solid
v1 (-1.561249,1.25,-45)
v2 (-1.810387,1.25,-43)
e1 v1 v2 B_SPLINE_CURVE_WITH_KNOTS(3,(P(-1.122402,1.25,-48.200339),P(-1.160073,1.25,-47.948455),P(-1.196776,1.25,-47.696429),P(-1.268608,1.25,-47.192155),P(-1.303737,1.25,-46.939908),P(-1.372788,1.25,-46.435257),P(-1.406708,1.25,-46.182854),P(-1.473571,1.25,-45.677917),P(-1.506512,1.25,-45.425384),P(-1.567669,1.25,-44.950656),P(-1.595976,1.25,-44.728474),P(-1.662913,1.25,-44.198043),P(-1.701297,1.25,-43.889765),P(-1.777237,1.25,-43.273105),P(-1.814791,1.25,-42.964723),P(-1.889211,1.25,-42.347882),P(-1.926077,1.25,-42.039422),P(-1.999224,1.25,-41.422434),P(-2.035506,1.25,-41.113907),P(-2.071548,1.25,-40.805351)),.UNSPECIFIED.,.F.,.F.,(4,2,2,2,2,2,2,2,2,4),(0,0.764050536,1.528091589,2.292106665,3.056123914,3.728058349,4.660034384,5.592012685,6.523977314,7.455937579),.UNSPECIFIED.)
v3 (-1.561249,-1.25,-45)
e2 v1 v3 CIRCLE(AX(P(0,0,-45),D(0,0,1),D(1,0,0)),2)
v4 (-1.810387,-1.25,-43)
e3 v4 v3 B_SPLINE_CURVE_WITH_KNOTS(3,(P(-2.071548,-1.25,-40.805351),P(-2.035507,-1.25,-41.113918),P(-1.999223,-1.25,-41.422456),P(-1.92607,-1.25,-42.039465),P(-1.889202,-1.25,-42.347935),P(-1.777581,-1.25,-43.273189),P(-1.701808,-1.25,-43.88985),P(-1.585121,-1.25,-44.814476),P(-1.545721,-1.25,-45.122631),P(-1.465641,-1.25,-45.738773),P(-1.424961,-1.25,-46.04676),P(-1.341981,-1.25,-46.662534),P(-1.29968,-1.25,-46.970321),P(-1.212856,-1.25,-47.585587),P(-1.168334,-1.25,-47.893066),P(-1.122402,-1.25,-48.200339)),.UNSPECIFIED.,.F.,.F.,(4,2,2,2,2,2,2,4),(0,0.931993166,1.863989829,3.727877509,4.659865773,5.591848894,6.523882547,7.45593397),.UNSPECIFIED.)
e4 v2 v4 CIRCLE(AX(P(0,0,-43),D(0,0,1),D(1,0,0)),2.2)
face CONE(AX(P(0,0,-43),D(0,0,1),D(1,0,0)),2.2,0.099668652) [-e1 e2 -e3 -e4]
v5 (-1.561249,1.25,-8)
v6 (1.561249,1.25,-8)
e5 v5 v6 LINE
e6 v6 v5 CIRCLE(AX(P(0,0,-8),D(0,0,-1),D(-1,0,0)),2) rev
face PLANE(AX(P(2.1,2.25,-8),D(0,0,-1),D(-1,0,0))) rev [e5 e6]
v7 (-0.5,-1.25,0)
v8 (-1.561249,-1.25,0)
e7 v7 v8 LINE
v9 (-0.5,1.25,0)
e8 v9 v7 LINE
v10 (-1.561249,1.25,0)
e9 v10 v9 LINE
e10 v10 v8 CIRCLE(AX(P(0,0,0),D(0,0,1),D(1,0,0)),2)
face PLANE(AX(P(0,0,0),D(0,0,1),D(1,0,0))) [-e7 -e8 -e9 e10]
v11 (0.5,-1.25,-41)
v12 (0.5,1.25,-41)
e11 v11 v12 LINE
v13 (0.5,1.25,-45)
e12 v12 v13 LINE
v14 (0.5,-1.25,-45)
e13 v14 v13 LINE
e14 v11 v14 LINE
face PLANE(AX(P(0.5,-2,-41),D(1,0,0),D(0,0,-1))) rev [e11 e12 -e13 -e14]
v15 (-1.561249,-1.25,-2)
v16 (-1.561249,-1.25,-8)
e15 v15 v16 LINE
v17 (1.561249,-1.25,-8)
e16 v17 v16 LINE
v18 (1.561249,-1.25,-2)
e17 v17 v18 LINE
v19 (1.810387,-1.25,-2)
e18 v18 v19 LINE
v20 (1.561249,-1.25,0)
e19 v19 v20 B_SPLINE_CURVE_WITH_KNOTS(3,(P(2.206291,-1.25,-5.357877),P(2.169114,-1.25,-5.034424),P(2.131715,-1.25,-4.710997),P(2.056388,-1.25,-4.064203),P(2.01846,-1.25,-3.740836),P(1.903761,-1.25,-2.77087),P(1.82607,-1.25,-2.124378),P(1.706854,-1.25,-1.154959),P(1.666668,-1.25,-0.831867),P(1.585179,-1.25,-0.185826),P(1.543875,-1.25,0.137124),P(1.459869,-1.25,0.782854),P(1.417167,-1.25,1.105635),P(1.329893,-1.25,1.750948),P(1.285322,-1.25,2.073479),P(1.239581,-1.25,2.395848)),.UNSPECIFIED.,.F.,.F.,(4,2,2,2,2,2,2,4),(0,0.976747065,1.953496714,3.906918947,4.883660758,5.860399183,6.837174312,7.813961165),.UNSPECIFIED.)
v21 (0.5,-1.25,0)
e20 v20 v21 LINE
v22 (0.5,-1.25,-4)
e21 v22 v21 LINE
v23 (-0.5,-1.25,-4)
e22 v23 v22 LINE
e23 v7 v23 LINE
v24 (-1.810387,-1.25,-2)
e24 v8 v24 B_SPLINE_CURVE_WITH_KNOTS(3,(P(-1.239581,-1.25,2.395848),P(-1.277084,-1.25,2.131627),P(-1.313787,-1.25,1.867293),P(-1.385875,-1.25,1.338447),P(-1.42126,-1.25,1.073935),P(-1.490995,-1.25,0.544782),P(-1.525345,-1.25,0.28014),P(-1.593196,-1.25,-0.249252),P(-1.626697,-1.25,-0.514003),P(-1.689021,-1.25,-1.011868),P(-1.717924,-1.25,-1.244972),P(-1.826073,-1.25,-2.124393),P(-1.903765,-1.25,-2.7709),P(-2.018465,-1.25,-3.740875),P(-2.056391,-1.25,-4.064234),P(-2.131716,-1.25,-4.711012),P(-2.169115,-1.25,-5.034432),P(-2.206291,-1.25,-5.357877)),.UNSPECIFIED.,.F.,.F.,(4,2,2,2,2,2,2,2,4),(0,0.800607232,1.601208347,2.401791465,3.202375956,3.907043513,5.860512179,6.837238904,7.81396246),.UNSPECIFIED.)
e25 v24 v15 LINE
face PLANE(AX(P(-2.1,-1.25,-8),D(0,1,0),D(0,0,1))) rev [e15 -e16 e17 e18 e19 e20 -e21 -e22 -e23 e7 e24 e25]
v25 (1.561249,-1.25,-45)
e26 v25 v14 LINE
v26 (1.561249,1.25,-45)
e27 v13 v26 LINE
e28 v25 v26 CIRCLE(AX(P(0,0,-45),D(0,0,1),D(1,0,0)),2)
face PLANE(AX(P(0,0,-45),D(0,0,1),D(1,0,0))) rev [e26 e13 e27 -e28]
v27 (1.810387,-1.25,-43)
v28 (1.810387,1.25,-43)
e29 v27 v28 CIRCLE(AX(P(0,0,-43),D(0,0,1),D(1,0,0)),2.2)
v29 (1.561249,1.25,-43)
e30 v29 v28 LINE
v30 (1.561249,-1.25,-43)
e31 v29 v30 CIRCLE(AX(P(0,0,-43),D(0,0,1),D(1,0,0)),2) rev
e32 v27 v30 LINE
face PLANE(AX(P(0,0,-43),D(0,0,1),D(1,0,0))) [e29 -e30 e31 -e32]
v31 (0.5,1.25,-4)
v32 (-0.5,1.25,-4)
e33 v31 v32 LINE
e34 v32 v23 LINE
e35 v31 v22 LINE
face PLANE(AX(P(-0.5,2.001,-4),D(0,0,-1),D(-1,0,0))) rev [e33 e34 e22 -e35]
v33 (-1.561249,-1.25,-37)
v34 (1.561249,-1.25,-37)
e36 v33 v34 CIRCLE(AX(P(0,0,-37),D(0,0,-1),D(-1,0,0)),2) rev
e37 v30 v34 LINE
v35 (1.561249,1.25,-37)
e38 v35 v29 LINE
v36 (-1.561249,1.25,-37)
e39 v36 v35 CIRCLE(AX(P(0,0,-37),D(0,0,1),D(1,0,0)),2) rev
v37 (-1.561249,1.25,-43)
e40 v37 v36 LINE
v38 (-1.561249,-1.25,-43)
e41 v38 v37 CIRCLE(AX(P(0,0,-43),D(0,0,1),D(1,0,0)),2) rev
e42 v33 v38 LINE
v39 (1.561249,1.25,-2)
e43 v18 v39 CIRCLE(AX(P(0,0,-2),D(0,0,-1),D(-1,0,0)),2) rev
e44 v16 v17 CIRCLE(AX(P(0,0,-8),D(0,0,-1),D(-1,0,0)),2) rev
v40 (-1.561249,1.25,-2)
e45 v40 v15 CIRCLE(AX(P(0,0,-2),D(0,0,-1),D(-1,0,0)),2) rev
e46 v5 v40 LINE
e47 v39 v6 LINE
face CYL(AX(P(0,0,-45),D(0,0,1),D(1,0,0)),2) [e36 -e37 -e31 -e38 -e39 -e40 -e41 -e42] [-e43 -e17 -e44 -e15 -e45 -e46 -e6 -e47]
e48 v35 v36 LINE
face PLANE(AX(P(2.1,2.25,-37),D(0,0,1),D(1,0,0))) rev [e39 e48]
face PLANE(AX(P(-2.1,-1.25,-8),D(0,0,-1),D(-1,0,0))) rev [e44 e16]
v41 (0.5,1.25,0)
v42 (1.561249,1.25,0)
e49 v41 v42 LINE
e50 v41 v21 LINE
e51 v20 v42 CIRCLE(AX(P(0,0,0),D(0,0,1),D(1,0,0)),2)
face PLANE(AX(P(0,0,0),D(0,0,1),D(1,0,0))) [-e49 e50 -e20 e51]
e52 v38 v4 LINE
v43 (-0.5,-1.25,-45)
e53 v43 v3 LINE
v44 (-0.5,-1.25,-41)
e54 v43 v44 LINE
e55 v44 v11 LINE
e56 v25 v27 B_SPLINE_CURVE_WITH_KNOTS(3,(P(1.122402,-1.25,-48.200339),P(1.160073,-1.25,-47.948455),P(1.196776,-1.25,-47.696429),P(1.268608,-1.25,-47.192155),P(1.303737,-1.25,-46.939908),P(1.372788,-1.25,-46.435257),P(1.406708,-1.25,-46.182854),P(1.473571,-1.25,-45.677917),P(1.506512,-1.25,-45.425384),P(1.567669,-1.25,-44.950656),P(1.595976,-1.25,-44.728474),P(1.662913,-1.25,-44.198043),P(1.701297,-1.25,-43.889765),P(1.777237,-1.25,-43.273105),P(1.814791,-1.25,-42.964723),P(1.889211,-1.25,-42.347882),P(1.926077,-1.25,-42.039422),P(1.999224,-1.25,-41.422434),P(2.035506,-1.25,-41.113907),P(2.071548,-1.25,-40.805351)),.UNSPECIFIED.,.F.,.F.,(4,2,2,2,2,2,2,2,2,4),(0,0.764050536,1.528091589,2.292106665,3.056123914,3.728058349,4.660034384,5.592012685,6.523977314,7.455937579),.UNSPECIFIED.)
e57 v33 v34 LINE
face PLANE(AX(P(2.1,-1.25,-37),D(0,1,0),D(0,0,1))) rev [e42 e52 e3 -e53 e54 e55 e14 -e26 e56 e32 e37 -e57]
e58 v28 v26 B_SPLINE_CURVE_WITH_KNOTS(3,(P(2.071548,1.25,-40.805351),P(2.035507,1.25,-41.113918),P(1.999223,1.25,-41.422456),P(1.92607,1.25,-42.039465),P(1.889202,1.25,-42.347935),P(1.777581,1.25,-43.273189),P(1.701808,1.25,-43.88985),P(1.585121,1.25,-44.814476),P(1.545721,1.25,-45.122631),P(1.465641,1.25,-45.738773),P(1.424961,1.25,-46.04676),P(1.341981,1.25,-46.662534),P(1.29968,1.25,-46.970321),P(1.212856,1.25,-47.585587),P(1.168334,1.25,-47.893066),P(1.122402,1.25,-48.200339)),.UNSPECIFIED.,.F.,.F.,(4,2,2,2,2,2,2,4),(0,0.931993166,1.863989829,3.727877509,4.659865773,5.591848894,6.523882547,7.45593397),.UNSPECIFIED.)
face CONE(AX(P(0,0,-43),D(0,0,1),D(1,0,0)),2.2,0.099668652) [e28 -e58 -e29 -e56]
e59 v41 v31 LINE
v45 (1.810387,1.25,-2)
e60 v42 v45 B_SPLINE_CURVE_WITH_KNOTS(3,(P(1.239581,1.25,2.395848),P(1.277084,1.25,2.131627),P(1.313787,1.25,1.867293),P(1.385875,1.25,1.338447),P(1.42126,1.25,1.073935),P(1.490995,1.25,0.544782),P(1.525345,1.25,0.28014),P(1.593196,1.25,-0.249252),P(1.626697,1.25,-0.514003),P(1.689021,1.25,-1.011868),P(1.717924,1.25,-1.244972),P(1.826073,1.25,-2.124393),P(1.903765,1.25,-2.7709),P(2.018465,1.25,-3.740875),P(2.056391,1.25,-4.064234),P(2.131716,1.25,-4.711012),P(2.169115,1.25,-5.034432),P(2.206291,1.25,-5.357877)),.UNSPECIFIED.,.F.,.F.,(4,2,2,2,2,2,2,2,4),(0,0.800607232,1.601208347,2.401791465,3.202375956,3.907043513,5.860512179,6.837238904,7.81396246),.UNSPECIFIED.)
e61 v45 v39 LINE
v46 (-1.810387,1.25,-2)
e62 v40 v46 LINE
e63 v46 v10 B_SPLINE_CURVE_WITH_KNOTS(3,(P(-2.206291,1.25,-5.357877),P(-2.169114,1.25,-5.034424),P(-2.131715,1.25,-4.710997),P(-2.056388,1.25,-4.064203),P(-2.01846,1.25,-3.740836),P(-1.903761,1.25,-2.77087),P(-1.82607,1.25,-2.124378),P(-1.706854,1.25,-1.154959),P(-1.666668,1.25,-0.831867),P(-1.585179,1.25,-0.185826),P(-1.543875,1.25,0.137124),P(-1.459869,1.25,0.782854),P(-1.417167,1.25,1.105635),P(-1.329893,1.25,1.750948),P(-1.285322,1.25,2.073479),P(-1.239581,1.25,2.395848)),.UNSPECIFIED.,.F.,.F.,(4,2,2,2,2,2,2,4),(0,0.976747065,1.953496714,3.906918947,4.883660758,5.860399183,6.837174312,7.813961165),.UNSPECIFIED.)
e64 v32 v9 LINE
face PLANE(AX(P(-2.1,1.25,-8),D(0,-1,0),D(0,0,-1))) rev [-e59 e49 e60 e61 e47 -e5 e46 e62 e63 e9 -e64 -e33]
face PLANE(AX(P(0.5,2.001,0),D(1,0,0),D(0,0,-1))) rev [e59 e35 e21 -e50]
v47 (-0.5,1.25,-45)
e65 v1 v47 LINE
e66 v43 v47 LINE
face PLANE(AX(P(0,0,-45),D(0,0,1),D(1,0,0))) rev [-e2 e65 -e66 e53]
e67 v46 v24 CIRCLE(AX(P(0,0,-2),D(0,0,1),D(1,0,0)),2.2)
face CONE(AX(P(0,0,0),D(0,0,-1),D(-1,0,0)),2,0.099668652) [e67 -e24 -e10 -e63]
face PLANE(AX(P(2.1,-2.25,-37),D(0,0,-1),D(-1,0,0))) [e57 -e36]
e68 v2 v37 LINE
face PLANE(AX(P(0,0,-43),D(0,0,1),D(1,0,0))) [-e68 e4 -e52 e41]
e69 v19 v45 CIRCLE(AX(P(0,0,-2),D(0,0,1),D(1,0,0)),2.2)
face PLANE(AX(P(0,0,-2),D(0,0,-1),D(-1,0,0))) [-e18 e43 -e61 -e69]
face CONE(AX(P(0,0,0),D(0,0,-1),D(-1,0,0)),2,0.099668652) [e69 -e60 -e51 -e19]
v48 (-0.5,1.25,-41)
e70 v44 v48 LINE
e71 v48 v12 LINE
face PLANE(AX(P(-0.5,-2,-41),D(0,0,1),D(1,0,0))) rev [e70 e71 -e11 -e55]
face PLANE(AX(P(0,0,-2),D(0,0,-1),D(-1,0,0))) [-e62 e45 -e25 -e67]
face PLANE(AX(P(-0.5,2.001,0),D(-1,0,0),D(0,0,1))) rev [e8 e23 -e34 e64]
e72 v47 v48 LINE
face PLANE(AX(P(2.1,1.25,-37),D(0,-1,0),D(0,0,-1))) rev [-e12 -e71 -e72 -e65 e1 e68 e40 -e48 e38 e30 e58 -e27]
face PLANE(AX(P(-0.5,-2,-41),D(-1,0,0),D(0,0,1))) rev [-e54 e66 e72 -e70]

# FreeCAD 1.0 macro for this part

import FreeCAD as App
import Part
import Sketcher

V = App.Vector
Q = App.Units.Quantity

doc = App.newDocument("Part")
params = doc.addObject("Spreadsheet::Sheet", "Params")
for row, (alias, value) in enumerate([
    ("sketch1_diameter", "4 mm"),
    ("pad1_length", "45 mm"),
    ("sketch2_width", "2 mm"),
    ("sketch2_width2", "2.2 mm"),
    ("revolution_angle", "360 deg"),
    ("sketch3_height", "1 mm"),
    ("sketch3_width", "4.2 mm"),
    ("pocket1_length", "8 mm"),
    ("sketch4_width", "1 mm"),
    ("sketch4_height", "4 mm"),
    ("sketch5_width", "2 mm"),
    ("sketch5_width2", "2.2 mm"),
    ("revolution2_angle", "360 deg"),
    ("sketch6_height", "1 mm"),
    ("sketch6_width", "4.2 mm"),
    ("pocket3_length", "8 mm"),
    ("sketch7_width", "1 mm"),
    ("sketch7_height", "4 mm"),
], start=1):
    params.set(f"A{row}", alias)
    params.set(f"B{row}", "=" + value)
    params.setAlias(f"B{row}", alias)

body = doc.addObject("PartDesign::Body", "Body")

# Sketch on XY plane
sketch1 = body.newObject("Sketcher::SketchObject", "Sketch")
sketch1.AttachmentSupport = (doc.getObject("XY_Plane"), [""])
sketch1.MapMode = "FlatFace"
sketch1.addGeometry(Part.Circle(V(0, 0, 0), V(0, 0, 1), 2), False)
sketch1.addConstraint(Sketcher.Constraint("Coincident", 0, 3, -1, 1))
sketch1.addConstraint(Sketcher.Constraint("Diameter", 0, Q("4 mm")))
sketch1.setExpression("Constraints[1]", "Params.sketch1_diameter")
pad1 = body.newObject("PartDesign::Pad", "Pad")
pad1.Profile = sketch1
pad1.setExpression("Length", "Params.pad1_length")
pad1.Reversed = True

# Sketch on XZ plane
sketch2 = body.newObject("Sketcher::SketchObject", "Sketch001")
sketch2.AttachmentSupport = (doc.getObject("XZ_Plane"), [""])
sketch2.MapMode = "FlatFace"
sketch2.addGeometry(Part.LineSegment(V(0, -2, 0), V(0, 0, 0)), False)
sketch2.addGeometry(Part.LineSegment(V(0, 0, 0), V(2, 0, 0)), False)
sketch2.addGeometry(Part.LineSegment(V(2, 0, 0), V(2.2, -2, 0)), False)
sketch2.addGeometry(Part.LineSegment(V(2.2, -2, 0), V(0, -2, 0)), False)
sketch2.addConstraint(Sketcher.Constraint("Coincident", 0, 2, 1, 1))
sketch2.addConstraint(Sketcher.Constraint("Coincident", 1, 2, 2, 1))
sketch2.addConstraint(Sketcher.Constraint("Coincident", 2, 2, 3, 1))
sketch2.addConstraint(Sketcher.Constraint("Coincident", 3, 2, 0, 1))
sketch2.addConstraint(Sketcher.Constraint("Vertical", 0))
sketch2.addConstraint(Sketcher.Constraint("Horizontal", 1))
sketch2.addConstraint(Sketcher.Constraint("Horizontal", 3))
sketch2.addConstraint(Sketcher.Constraint("Coincident", 0, 2, -1, 1))
sketch2.addConstraint(Sketcher.Constraint("Equal", 1, 0))
sketch2.addConstraint(Sketcher.Constraint("DistanceX", 1, 1, 1, 2, Q("2 mm")))
sketch2.addConstraint(Sketcher.Constraint("DistanceX", 3, 2, 3, 1, Q("2.2 mm")))
sketch2.setExpression("Constraints[9]", "Params.sketch2_width")
sketch2.setExpression("Constraints[10]", "Params.sketch2_width2")
revolution = body.newObject("PartDesign::Revolution", "Revolution")
revolution.Profile = sketch2
revolution.ReferenceAxis = (sketch2, ["V_Axis"])
revolution.setExpression("Angle", "Params.revolution_angle")

# Sketch on XY plane
sketch3 = body.newObject("Sketcher::SketchObject", "Sketch002")
sketch3.AttachmentSupport = (doc.getObject("XY_Plane"), [""])
sketch3.MapMode = "FlatFace"
sketch3.addGeometry(Part.LineSegment(V(-2.1, 2.25, 0), V(-2.1, 1.25, 0)), False)
sketch3.addGeometry(Part.LineSegment(V(-2.1, 1.25, 0), V(2.1, 1.25, 0)), False)
sketch3.addGeometry(Part.LineSegment(V(2.1, 1.25, 0), V(2.1, 2.25, 0)), False)
sketch3.addGeometry(Part.LineSegment(V(2.1, 2.25, 0), V(-2.1, 2.25, 0)), False)
sketch3.addGeometry(Part.LineSegment(V(-2.1, -1.25, 0), V(-2.1, -2.25, 0)), False)
sketch3.addGeometry(Part.LineSegment(V(-2.1, -2.25, 0), V(2.1, -2.25, 0)), False)
sketch3.addGeometry(Part.LineSegment(V(2.1, -2.25, 0), V(2.1, -1.25, 0)), False)
sketch3.addGeometry(Part.LineSegment(V(2.1, -1.25, 0), V(-2.1, -1.25, 0)), False)
sketch3.addConstraint(Sketcher.Constraint("Coincident", 0, 2, 1, 1))
sketch3.addConstraint(Sketcher.Constraint("Coincident", 1, 2, 2, 1))
sketch3.addConstraint(Sketcher.Constraint("Coincident", 2, 2, 3, 1))
sketch3.addConstraint(Sketcher.Constraint("Coincident", 3, 2, 0, 1))
sketch3.addConstraint(Sketcher.Constraint("Coincident", 4, 2, 5, 1))
sketch3.addConstraint(Sketcher.Constraint("Coincident", 5, 2, 6, 1))
sketch3.addConstraint(Sketcher.Constraint("Coincident", 6, 2, 7, 1))
sketch3.addConstraint(Sketcher.Constraint("Coincident", 7, 2, 4, 1))
sketch3.addConstraint(Sketcher.Constraint("Vertical", 0))
sketch3.addConstraint(Sketcher.Constraint("Horizontal", 1))
sketch3.addConstraint(Sketcher.Constraint("Vertical", 2))
sketch3.addConstraint(Sketcher.Constraint("Horizontal", 3))
sketch3.addConstraint(Sketcher.Constraint("Vertical", 4))
sketch3.addConstraint(Sketcher.Constraint("Horizontal", 5))
sketch3.addConstraint(Sketcher.Constraint("Vertical", 6))
sketch3.addConstraint(Sketcher.Constraint("Horizontal", 7))
sketch3.addConstraint(Sketcher.Constraint("Symmetric", 2, 2, 4, 2, -1, 1))
sketch3.addConstraint(Sketcher.Constraint("Symmetric", 0, 2, 6, 2, -1, 1))
sketch3.addConstraint(Sketcher.Constraint("Vertical", 3, 2, 4, 2))
sketch3.addConstraint(Sketcher.Constraint("DistanceY", 0, 2, 0, 1, Q("1 mm")))
sketch3.addConstraint(Sketcher.Constraint("DistanceX", 1, 1, 1, 2, Q("4.2 mm")))
sketch3.addConstraint(Sketcher.Constraint("DistanceY", 4, 2, 0, 2, Q("3.5 mm")))
sketch3.setExpression("Constraints[19]", "Params.sketch3_height")
sketch3.setExpression("Constraints[20]", "Params.sketch3_width")
pocket1 = body.newObject("PartDesign::Pocket", "Pocket")
pocket1.Profile = sketch3
pocket1.setExpression("Length", "Params.pocket1_length")

# Sketch on XZ plane
sketch4 = body.newObject("Sketcher::SketchObject", "Sketch003")
sketch4.AttachmentSupport = (doc.getObject("XZ_Plane"), [""])
sketch4.MapMode = "FlatFace"
sketch4.AttachmentOffset = App.Placement(V(0, 0, 1.25), App.Rotation())
sketch4.addGeometry(Part.LineSegment(V(-0.5, 0, 0), V(-0.5, -4, 0)), False)
sketch4.addGeometry(Part.LineSegment(V(-0.5, -4, 0), V(0.5, -4, 0)), False)
sketch4.addGeometry(Part.LineSegment(V(0.5, -4, 0), V(0.5, 0, 0)), False)
sketch4.addGeometry(Part.LineSegment(V(0.5, 0, 0), V(-0.5, 0, 0)), False)
sketch4.addConstraint(Sketcher.Constraint("Coincident", 0, 2, 1, 1))
sketch4.addConstraint(Sketcher.Constraint("Coincident", 1, 2, 2, 1))
sketch4.addConstraint(Sketcher.Constraint("Coincident", 2, 2, 3, 1))
sketch4.addConstraint(Sketcher.Constraint("Coincident", 3, 2, 0, 1))
sketch4.addConstraint(Sketcher.Constraint("Vertical", 0))
sketch4.addConstraint(Sketcher.Constraint("Horizontal", 1))
sketch4.addConstraint(Sketcher.Constraint("Vertical", 2))
sketch4.addConstraint(Sketcher.Constraint("Horizontal", 3))
sketch4.addConstraint(Sketcher.Constraint("Symmetric", 2, 2, 3, 2, -1, 1))
sketch4.addConstraint(Sketcher.Constraint("DistanceX", 1, 1, 1, 2, Q("1 mm")))
sketch4.addConstraint(Sketcher.Constraint("DistanceY", 0, 2, 0, 1, Q("4 mm")))
sketch4.setExpression("Constraints[9]", "Params.sketch4_width")
sketch4.setExpression("Constraints[10]", "Params.sketch4_height")
pocket2 = body.newObject("PartDesign::Pocket", "Pocket001")
pocket2.Profile = sketch4
pocket2.Type = "UpToFirst"

# Sketch on XZ plane
sketch5 = body.newObject("Sketcher::SketchObject", "Sketch004")
sketch5.AttachmentSupport = (doc.getObject("XZ_Plane"), [""])
sketch5.MapMode = "FlatFace"
sketch5.addGeometry(Part.LineSegment(V(0, -45, 0), V(0, -43, 0)), False)
sketch5.addGeometry(Part.LineSegment(V(0, -43, 0), V(2.2, -43, 0)), False)
sketch5.addGeometry(Part.LineSegment(V(2.2, -43, 0), V(2, -45, 0)), False)
sketch5.addGeometry(Part.LineSegment(V(2, -45, 0), V(0, -45, 0)), False)
sketch5.addConstraint(Sketcher.Constraint("Coincident", 0, 2, 1, 1))
sketch5.addConstraint(Sketcher.Constraint("Coincident", 1, 2, 2, 1))
sketch5.addConstraint(Sketcher.Constraint("Coincident", 2, 2, 3, 1))
sketch5.addConstraint(Sketcher.Constraint("Coincident", 3, 2, 0, 1))
sketch5.addConstraint(Sketcher.Constraint("Vertical", 0))
sketch5.addConstraint(Sketcher.Constraint("Horizontal", 1))
sketch5.addConstraint(Sketcher.Constraint("Horizontal", 3))
sketch5.addConstraint(Sketcher.Constraint("PointOnObject", 0, 2, -2))
sketch5.addConstraint(Sketcher.Constraint("Equal", 3, 0))
sketch5.addConstraint(Sketcher.Constraint("DistanceX", 3, 2, 3, 1, Q("2 mm")))
sketch5.addConstraint(Sketcher.Constraint("DistanceX", 1, 1, 1, 2, Q("2.2 mm")))
sketch5.addConstraint(Sketcher.Constraint("DistanceY", 0, 2, -1, 1, Q("43 mm")))
sketch5.setExpression("Constraints[9]", "Params.sketch5_width")
sketch5.setExpression("Constraints[10]", "Params.sketch5_width2")
revolution2 = body.newObject("PartDesign::Revolution", "Revolution001")
revolution2.Profile = sketch5
revolution2.ReferenceAxis = (sketch5, ["V_Axis"])
revolution2.setExpression("Angle", "Params.revolution2_angle")

# Sketch on XY plane
sketch6 = body.newObject("Sketcher::SketchObject", "Sketch005")
sketch6.AttachmentSupport = (doc.getObject("XY_Plane"), [""])
sketch6.MapMode = "FlatFace"
sketch6.AttachmentOffset = App.Placement(V(0, 0, -45), App.Rotation())
sketch6.addGeometry(Part.LineSegment(V(2.1, 2.25, 0), V(2.1, 1.25, 0)), False)
sketch6.addGeometry(Part.LineSegment(V(2.1, 1.25, 0), V(-2.1, 1.25, 0)), False)
sketch6.addGeometry(Part.LineSegment(V(-2.1, 1.25, 0), V(-2.1, 2.25, 0)), False)
sketch6.addGeometry(Part.LineSegment(V(-2.1, 2.25, 0), V(2.1, 2.25, 0)), False)
sketch6.addGeometry(Part.LineSegment(V(2.1, -1.25, 0), V(2.1, -2.25, 0)), False)
sketch6.addGeometry(Part.LineSegment(V(2.1, -2.25, 0), V(-2.1, -2.25, 0)), False)
sketch6.addGeometry(Part.LineSegment(V(-2.1, -2.25, 0), V(-2.1, -1.25, 0)), False)
sketch6.addGeometry(Part.LineSegment(V(-2.1, -1.25, 0), V(2.1, -1.25, 0)), False)
sketch6.addConstraint(Sketcher.Constraint("Coincident", 0, 2, 1, 1))
sketch6.addConstraint(Sketcher.Constraint("Coincident", 1, 2, 2, 1))
sketch6.addConstraint(Sketcher.Constraint("Coincident", 2, 2, 3, 1))
sketch6.addConstraint(Sketcher.Constraint("Coincident", 3, 2, 0, 1))
sketch6.addConstraint(Sketcher.Constraint("Coincident", 4, 2, 5, 1))
sketch6.addConstraint(Sketcher.Constraint("Coincident", 5, 2, 6, 1))
sketch6.addConstraint(Sketcher.Constraint("Coincident", 6, 2, 7, 1))
sketch6.addConstraint(Sketcher.Constraint("Coincident", 7, 2, 4, 1))
sketch6.addConstraint(Sketcher.Constraint("Vertical", 0))
sketch6.addConstraint(Sketcher.Constraint("Horizontal", 1))
sketch6.addConstraint(Sketcher.Constraint("Vertical", 2))
sketch6.addConstraint(Sketcher.Constraint("Horizontal", 3))
sketch6.addConstraint(Sketcher.Constraint("Vertical", 4))
sketch6.addConstraint(Sketcher.Constraint("Horizontal", 5))
sketch6.addConstraint(Sketcher.Constraint("Vertical", 6))
sketch6.addConstraint(Sketcher.Constraint("Horizontal", 7))
sketch6.addConstraint(Sketcher.Constraint("Symmetric", 2, 2, 4, 2, -1, 1))
sketch6.addConstraint(Sketcher.Constraint("Symmetric", 0, 2, 6, 2, -1, 1))
sketch6.addConstraint(Sketcher.Constraint("Vertical", 3, 2, 4, 2))
sketch6.addConstraint(Sketcher.Constraint("DistanceY", 0, 2, 0, 1, Q("1 mm")))
sketch6.addConstraint(Sketcher.Constraint("DistanceX", 1, 2, 1, 1, Q("4.2 mm")))
sketch6.addConstraint(Sketcher.Constraint("DistanceY", 4, 2, 0, 2, Q("3.5 mm")))
sketch6.setExpression("Constraints[19]", "Params.sketch6_height")
sketch6.setExpression("Constraints[20]", "Params.sketch6_width")
pocket3 = body.newObject("PartDesign::Pocket", "Pocket002")
pocket3.Profile = sketch6
pocket3.setExpression("Length", "Params.pocket3_length")
pocket3.Reversed = True

# Sketch on XZ plane
sketch7 = body.newObject("Sketcher::SketchObject", "Sketch006")
sketch7.AttachmentSupport = (doc.getObject("XZ_Plane"), [""])
sketch7.MapMode = "FlatFace"
sketch7.AttachmentOffset = App.Placement(V(0, 0, -1.25), App.Rotation())
sketch7.addGeometry(Part.LineSegment(V(-0.5, -45, 0), V(-0.5, -41, 0)), False)
sketch7.addGeometry(Part.LineSegment(V(-0.5, -41, 0), V(0.5, -41, 0)), False)
sketch7.addGeometry(Part.LineSegment(V(0.5, -41, 0), V(0.5, -45, 0)), False)
sketch7.addGeometry(Part.LineSegment(V(0.5, -45, 0), V(-0.5, -45, 0)), False)
sketch7.addConstraint(Sketcher.Constraint("Coincident", 0, 2, 1, 1))
sketch7.addConstraint(Sketcher.Constraint("Coincident", 1, 2, 2, 1))
sketch7.addConstraint(Sketcher.Constraint("Coincident", 2, 2, 3, 1))
sketch7.addConstraint(Sketcher.Constraint("Coincident", 3, 2, 0, 1))
sketch7.addConstraint(Sketcher.Constraint("Vertical", 0))
sketch7.addConstraint(Sketcher.Constraint("Horizontal", 1))
sketch7.addConstraint(Sketcher.Constraint("Vertical", 2))
sketch7.addConstraint(Sketcher.Constraint("Horizontal", 3))
sketch7.addConstraint(Sketcher.Constraint("DistanceX", 1, 1, 1, 2, Q("1 mm")))
sketch7.addConstraint(Sketcher.Constraint("DistanceY", 0, 1, 0, 2, Q("4 mm")))
sketch7.addConstraint(Sketcher.Constraint("DistanceY", 0, 2, -1, 1, Q("41 mm")))
sketch7.addConstraint(Sketcher.Constraint("DistanceX", 0, 2, -1, 1, Q("0.5 mm")))
sketch7.setExpression("Constraints[8]", "Params.sketch7_width")
sketch7.setExpression("Constraints[9]", "Params.sketch7_height")
pocket4 = body.newObject("PartDesign::Pocket", "Pocket003")
pocket4.Profile = sketch7
pocket4.Type = "ThroughAll"
pocket4.Reversed = True

doc.recompute()
